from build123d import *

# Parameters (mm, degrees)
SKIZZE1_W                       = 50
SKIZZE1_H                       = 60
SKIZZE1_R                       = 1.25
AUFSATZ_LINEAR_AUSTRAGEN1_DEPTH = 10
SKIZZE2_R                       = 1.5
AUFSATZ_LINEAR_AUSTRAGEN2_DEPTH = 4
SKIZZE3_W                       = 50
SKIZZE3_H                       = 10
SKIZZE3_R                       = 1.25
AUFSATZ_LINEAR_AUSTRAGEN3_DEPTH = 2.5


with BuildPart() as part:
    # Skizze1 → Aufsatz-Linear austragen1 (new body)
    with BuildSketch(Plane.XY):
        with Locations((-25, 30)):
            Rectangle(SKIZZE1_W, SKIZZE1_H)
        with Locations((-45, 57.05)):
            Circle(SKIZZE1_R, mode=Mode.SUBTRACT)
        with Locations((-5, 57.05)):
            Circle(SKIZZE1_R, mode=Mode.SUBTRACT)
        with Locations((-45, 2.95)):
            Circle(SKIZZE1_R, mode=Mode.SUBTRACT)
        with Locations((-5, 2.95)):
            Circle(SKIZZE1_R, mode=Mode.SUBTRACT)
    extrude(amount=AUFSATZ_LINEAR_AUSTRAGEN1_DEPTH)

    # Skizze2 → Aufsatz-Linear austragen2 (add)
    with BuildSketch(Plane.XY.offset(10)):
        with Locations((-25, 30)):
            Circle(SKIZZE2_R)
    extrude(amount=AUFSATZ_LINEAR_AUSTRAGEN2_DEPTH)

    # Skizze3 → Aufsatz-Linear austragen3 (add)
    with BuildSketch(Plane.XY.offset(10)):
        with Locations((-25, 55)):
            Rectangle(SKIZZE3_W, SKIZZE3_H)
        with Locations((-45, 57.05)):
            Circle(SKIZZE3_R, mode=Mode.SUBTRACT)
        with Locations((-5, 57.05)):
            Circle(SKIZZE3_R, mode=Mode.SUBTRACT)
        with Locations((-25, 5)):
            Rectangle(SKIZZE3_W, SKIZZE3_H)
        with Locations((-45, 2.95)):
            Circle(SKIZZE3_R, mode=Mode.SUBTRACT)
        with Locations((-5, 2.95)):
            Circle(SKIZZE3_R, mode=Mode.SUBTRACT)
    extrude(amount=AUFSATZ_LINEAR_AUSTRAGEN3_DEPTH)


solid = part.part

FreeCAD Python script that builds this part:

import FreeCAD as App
import Part
import Sketcher
from FreeCAD import Vector
Q = App.Units.Quantity


def add_polygon(sketch, points):
    """Adds a closed chain of lines whose ends are joined by coincident constraints."""
    first, n = sketch.GeometryCount, len(points)
    for a, b in zip(points, points[1:] + points[:1]):
        sketch.addGeometry(Part.LineSegment(App.Vector(*a, 0), App.Vector(*b, 0)), False)
    for i in range(n):
        sketch.addConstraint(Sketcher.Constraint("Coincident", first + i, 2, first + (i + 1) % n, 1))

doc = App.newDocument("Part")
params = doc.addObject("Spreadsheet::Sheet", "Params")
for row, (alias, value) in enumerate([
    ("sketch1_diameter", "2.5 mm"),
    ("sketch1_width", "50 mm"),
    ("sketch1_height", "60 mm"),
    ("pad1_length", "10 mm"),
    ("sketch2_diameter", "3 mm"),
    ("pad2_length", "4 mm"),
    ("sketch3_diameter", "2.5 mm"),
    ("sketch3_width", "50 mm"),
    ("sketch3_height", "10 mm"),
    ("pad3_length", "2.5 mm"),
], start=1):
    params.set(f"A{row}", alias)
    params.set(f"B{row}", "=" + value)
    params.setAlias(f"B{row}", alias)

body = doc.addObject("PartDesign::Body", "Body")

sketch1 = body.newObject("Sketcher::SketchObject", "Sketch")
sketch1.AttachmentSupport = (doc.getObject("XY_Plane"), [""])
sketch1.MapMode = "FlatFace"
add_polygon(sketch1, [(-50, 60), (-50, 0), (0, 0), (0, 60)])
sketch1.addGeometry(Part.Circle(Vector(-45, 3, 0), Vector(0, 0, 1), 1.2), False)
sketch1.addGeometry(Part.Circle(Vector(-5, 3, 0), Vector(0, 0, 1), 1.2), False)
sketch1.addGeometry(Part.Circle(Vector(-45, 57, 0), Vector(0, 0, 1), 1.2), False)
sketch1.addGeometry(Part.Circle(Vector(-5, 57, 0), Vector(0, 0, 1), 1.2), False)
sketch1.addConstraint([
    Sketcher.Constraint("Vertical", 0),
    Sketcher.Constraint("Horizontal", 1),
    Sketcher.Constraint("Vertical", 2),
    Sketcher.Constraint("Horizontal", 3),
    Sketcher.Constraint("Coincident", 1, 2, -1, 1),
    Sketcher.Constraint("Equal", 4, 5),
    Sketcher.Constraint("Equal", 5, 6),
    Sketcher.Constraint("Equal", 6, 7),
    Sketcher.Constraint("Horizontal", 4, 3, 5, 3),
    Sketcher.Constraint("Horizontal", 6, 3, 7, 3),
    Sketcher.Constraint("Vertical", 4, 3, 6, 3),
    Sketcher.Constraint("Vertical", 5, 3, 7, 3),
    Sketcher.Constraint("Diameter", 4, Q("2.5 mm")),
    Sketcher.Constraint("DistanceX", 1, 1, 1, 2, Q("50 mm")),
    Sketcher.Constraint("DistanceY", 0, 2, 0, 1, Q("60 mm")),
    Sketcher.Constraint("DistanceX", 4, 3, -1, 1, Q("45 mm")),
    Sketcher.Constraint("DistanceX", 5, 3, -1, 1, Q("5 mm")),
    Sketcher.Constraint("DistanceY", 4, 3, 6, 3, Q("54.1 mm")),
    Sketcher.Constraint("DistanceY", -1, 1, 4, 3, Q("2.95 mm")),
])
sketch1.setExpression("Constraints[16]", "Params.sketch1_diameter")
sketch1.setExpression("Constraints[17]", "Params.sketch1_width")
sketch1.setExpression("Constraints[18]", "Params.sketch1_height")
pad1 = body.newObject("PartDesign::Pad", "Pad")
pad1.Profile = sketch1
pad1.setExpression("Length", "Params.pad1_length")

sketch2 = body.newObject("Sketcher::SketchObject", "Sketch001")
sketch2.AttachmentSupport = (doc.getObject("XY_Plane"), [""])
sketch2.MapMode = "FlatFace"
sketch2.AttachmentOffset = App.Placement(Vector(0, 0, 10), App.Rotation())
sketch2.addGeometry(Part.Circle(Vector(-25, 30, 0), Vector(0, 0, 1), 1.5), False)
sketch2.addConstraint([
    Sketcher.Constraint("Diameter", 0, Q("3 mm")),
    Sketcher.Constraint("DistanceX", 0, 3, -1, 1, Q("25 mm")),
    Sketcher.Constraint("DistanceY", -1, 1, 0, 3, Q("30 mm")),
])
sketch2.setExpression("Constraints[0]", "Params.sketch2_diameter")
pad2 = body.newObject("PartDesign::Pad", "Pad001")
pad2.Profile = sketch2
pad2.setExpression("Length", "Params.pad2_length")

sketch3 = body.newObject("Sketcher::SketchObject", "Sketch002")
sketch3.AttachmentSupport = (doc.getObject("XY_Plane"), [""])
sketch3.MapMode = "FlatFace"
sketch3.AttachmentOffset = App.Placement(Vector(0, 0, 10), App.Rotation())
add_polygon(sketch3, [(-50, 60), (-50, 50), (0, 50), (0, 60)])
sketch3.addGeometry(Part.Circle(Vector(-45, 57, 0), Vector(0, 0, 1), 1.2), False)
sketch3.addGeometry(Part.Circle(Vector(-5, 57, 0), Vector(0, 0, 1), 1.2), False)
add_polygon(sketch3, [(-50, 10), (-50, 0), (0, 0), (0, 10)])
sketch3.addGeometry(Part.Circle(Vector(-45, 3, 0), Vector(0, 0, 1), 1.2), False)
sketch3.addGeometry(Part.Circle(Vector(-5, 3, 0), Vector(0, 0, 1), 1.2), False)
sketch3.addConstraint([
    Sketcher.Constraint("Vertical", 0),
    Sketcher.Constraint("Horizontal", 1),
    Sketcher.Constraint("Vertical", 2),
    Sketcher.Constraint("Horizontal", 3),
    Sketcher.Constraint("Vertical", 6),
    Sketcher.Constraint("Horizontal", 7),
    Sketcher.Constraint("Vertical", 8),
    Sketcher.Constraint("Horizontal", 9),
    Sketcher.Constraint("Coincident", 7, 2, -1, 1),
    Sketcher.Constraint("Equal", 4, 5),
    Sketcher.Constraint("Equal", 5, 10),
    Sketcher.Constraint("Equal", 10, 11),
    Sketcher.Constraint("PointOnObject", 1, 2, -2),
    Sketcher.Constraint("Horizontal", 4, 3, 5, 3),
    Sketcher.Constraint("Horizontal", 10, 3, 11, 3),
    Sketcher.Constraint("Vertical", 4, 3, 10, 3),
    Sketcher.Constraint("Vertical", 5, 3, 11, 3),
    Sketcher.Constraint("Vertical", 3, 2, 6, 2),
    Sketcher.Constraint("Equal", 2, 6),
    Sketcher.Constraint("Diameter", 4, Q("2.5 mm")),
    Sketcher.Constraint("DistanceX", 1, 1, 1, 2, Q("50 mm")),
    Sketcher.Constraint("DistanceY", 0, 2, 0, 1, Q("10 mm")),
    Sketcher.Constraint("DistanceX", 4, 3, -1, 1, Q("45 mm")),
    Sketcher.Constraint("DistanceX", 5, 3, -1, 1, Q("5 mm")),
    Sketcher.Constraint("DistanceY", -1, 1, 0, 2, Q("50 mm")),
    Sketcher.Constraint("DistanceY", 10, 3, 4, 3, Q("54.1 mm")),
    Sketcher.Constraint("DistanceY", -1, 1, 4, 3, Q("57.05 mm")),
])
sketch3.setExpression("Constraints[27]", "Params.sketch3_diameter")
sketch3.setExpression("Constraints[28]", "Params.sketch3_width")
sketch3.setExpression("Constraints[29]", "Params.sketch3_height")
pad3 = body.newObject("PartDesign::Pad", "Pad002")
pad3.Profile = sketch3
pad3.setExpression("Length", "Params.pad3_length")

doc.recompute()
